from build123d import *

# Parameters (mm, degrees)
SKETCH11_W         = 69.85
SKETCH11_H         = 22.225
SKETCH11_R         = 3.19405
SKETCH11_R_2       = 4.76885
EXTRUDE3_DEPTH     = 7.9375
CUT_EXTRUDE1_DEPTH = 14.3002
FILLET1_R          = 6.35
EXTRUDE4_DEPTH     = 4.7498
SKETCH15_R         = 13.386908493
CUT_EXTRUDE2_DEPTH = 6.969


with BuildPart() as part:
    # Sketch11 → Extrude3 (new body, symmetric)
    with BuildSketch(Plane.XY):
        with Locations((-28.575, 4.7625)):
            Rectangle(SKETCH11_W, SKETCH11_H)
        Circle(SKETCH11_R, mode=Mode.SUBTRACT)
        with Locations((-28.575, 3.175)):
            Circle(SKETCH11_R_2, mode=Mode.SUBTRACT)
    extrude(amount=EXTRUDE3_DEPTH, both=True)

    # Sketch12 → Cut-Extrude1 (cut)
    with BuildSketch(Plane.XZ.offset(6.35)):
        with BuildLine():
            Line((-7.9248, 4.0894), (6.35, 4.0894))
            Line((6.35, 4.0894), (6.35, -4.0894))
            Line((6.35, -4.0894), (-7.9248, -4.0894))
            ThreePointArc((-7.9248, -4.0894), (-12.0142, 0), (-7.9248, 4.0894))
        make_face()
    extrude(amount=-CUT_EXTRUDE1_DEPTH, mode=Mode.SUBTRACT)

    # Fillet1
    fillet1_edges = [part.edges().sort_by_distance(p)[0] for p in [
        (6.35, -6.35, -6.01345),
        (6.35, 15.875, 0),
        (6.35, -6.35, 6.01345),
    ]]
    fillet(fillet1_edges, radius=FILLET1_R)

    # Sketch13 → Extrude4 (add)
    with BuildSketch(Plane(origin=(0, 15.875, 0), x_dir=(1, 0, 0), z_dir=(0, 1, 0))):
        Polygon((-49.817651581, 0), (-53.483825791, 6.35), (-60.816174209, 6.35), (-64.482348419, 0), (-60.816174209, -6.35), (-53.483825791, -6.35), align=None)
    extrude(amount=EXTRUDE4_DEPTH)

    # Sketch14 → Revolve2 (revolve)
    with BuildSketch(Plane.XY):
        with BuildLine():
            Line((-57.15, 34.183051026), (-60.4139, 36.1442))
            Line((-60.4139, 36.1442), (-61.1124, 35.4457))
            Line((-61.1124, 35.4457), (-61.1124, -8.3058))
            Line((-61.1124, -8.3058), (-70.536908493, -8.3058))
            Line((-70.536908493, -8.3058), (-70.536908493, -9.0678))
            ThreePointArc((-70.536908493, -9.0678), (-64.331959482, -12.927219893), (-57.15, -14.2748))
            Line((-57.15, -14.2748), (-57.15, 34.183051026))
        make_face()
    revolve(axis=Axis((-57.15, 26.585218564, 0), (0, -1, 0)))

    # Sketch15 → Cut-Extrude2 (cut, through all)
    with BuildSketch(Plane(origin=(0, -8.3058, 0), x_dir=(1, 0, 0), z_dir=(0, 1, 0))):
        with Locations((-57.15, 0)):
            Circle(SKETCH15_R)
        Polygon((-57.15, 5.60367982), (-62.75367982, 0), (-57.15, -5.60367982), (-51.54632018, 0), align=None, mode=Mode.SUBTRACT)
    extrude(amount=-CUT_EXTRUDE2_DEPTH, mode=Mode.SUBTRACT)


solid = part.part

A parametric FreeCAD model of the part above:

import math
import FreeCAD as App
import Part
import Sketcher
Q = App.Units.Quantity


def edges_at(feature, points):
    """Names of the edges that pass closest to the given points."""
    edges = feature.Shape.Edges
    near = lambda p: min(range(len(edges)), key=lambda i: edges[i].distToShape(Part.Vertex(*p))[0])
    return sorted({f"Edge{near(p) + 1}" for p in points})

doc = App.newDocument("Part")
body = doc.addObject("PartDesign::Body", "Body")

sketch1 = body.newObject("Sketcher::SketchObject", "Sketch")
sketch1.AttachmentSupport = (doc.getObject("XY_Plane"), [""])
sketch1.MapMode = "FlatFace"
sketch1.addGeometry([
    Part.LineSegment(App.Vector(-63.5, 15.9, 0), App.Vector(-63.5, -6.3, 0)),
    Part.LineSegment(App.Vector(-63.5, -6.3, 0), App.Vector(6.3, -6.3, 0)),
    Part.LineSegment(App.Vector(6.3, -6.3, 0), App.Vector(6.3, 15.9, 0)),
    Part.LineSegment(App.Vector(6.3, 15.9, 0), App.Vector(-63.5, 15.9, 0)),
    Part.Circle(App.Vector(0, 0, 0), App.Vector(0, 0, 1), 3.2),
    Part.Circle(App.Vector(-28.6, 3.2, 0), App.Vector(0, 0, 1), 4.8),
], False)
sketch1.addConstraint([
    Sketcher.Constraint("Coincident", 0, 2, 1, 1),
    Sketcher.Constraint("Coincident", 1, 2, 2, 1),
    Sketcher.Constraint("Coincident", 2, 2, 3, 1),
    Sketcher.Constraint("Coincident", 3, 2, 0, 1),
    Sketcher.Constraint("Vertical", 0),
    Sketcher.Constraint("Horizontal", 1),
    Sketcher.Constraint("Vertical", 2),
    Sketcher.Constraint("Horizontal", 3),
    Sketcher.Constraint("Coincident", 4, 3, -1, 1),
    Sketcher.Constraint("Diameter", 4, Q("0.2515 in")),
    Sketcher.Constraint("Diameter", 5, Q("0.3755 in")),
    Sketcher.Constraint("DistanceX", 1, 1, 1, 2, Q("2.75 in")),
    Sketcher.Constraint("DistanceX", 0, 2, -1, 1, Q("2.5 in")),
    Sketcher.Constraint("DistanceY", 5, 3, 2, 2, Q("0.5 in")),
    Sketcher.Constraint("DistanceY", 0, 2, 0, 1, Q("0.875 in")),
    Sketcher.Constraint("DistanceY", 0, 2, -1, 1, Q("0.25 in")),
    Sketcher.Constraint("DistanceX", 5, 3, -1, 1, Q("1.125 in")),
])
pad1 = body.newObject("PartDesign::Pad", "Pad")
pad1.Profile = sketch1
pad1.Length = Q("0.625 in")
pad1.Midplane = True

sketch2 = body.newObject("Sketcher::SketchObject", "Sketch001")
sketch2.AttachmentSupport = (doc.getObject("XZ_Plane"), [""])
sketch2.MapMode = "FlatFace"
sketch2.AttachmentOffset = App.Placement(App.Vector(0, 0, 0.25 * 25.4), App.Rotation())
sketch2.addGeometry([
    Part.LineSegment(App.Vector(6.3, 4.1, 0), App.Vector(-7.9, 4.1, 0)),
    Part.ArcOfCircle(Part.Circle(App.Vector(-7.9, 0, 0), App.Vector(0, 0, 1), 4.1), math.radians(90), math.radians(270)),
    Part.LineSegment(App.Vector(-7.9, -4.1, 0), App.Vector(6.3, -4.1, 0)),
    Part.LineSegment(App.Vector(6.3, -4.1, 0), App.Vector(6.3, 4.1, 0)),
], False)
sketch2.addConstraint([
    Sketcher.Constraint("Tangent", 0, 2, 1, 1),
    Sketcher.Constraint("Tangent", 1, 2, 2, 1),
    Sketcher.Constraint("Coincident", 2, 2, 3, 1),
    Sketcher.Constraint("Coincident", 3, 2, 0, 1),
    Sketcher.Constraint("Horizontal", 0),
    Sketcher.Constraint("Horizontal", 2),
    Sketcher.Constraint("Vertical", 3),
    Sketcher.Constraint("PointOnObject", 1, 3, -1),
    Sketcher.Constraint("Radius", 1, Q("0.161 in")),
    Sketcher.Constraint("DistanceX", 0, 2, 0, 1, Q("0.562 in")),
    Sketcher.Constraint("DistanceX", -1, 1, 2, 2, Q("0.25 in")),
])
pocket1 = body.newObject("PartDesign::Pocket", "Pocket")
pocket1.Profile = sketch2
pocket1.Length = Q("0.563 in")
doc.recompute()

fillet = body.newObject("PartDesign::Fillet", "Fillet")
fillet.Base = (pocket1, edges_at(pocket1, [(6.35, -6.35, -6.013), (6.35, 15.875, 0), (6.35, -6.35, 6.013)]))
fillet.Radius = Q("0.25 in")

sketch3 = body.newObject("Sketcher::SketchObject", "Sketch002")
sketch3.AttachmentSupport = (doc.getObject("XZ_Plane"), [""])
sketch3.MapMode = "FlatFace"
sketch3.AttachmentOffset = App.Placement(App.Vector(0, 0, -0.625 * 25.4), App.Rotation())
sketch3.addGeometry([
    Part.LineSegment(App.Vector(-50, 0, 0), App.Vector(-53, -6, 0)),
    Part.LineSegment(App.Vector(-53, -6, 0), App.Vector(-61, -6, 0)),
    Part.LineSegment(App.Vector(-61, -6, 0), App.Vector(-64, 0, 0)),
    Part.LineSegment(App.Vector(-64, 0, 0), App.Vector(-61, 6, 0)),
    Part.LineSegment(App.Vector(-61, 6, 0), App.Vector(-53, 6, 0)),
    Part.LineSegment(App.Vector(-53, 6, 0), App.Vector(-50, 0, 0)),
], False)
sketch3.addConstraint([
    Sketcher.Constraint("Coincident", 0, 2, 1, 1),
    Sketcher.Constraint("Coincident", 1, 2, 2, 1),
    Sketcher.Constraint("Coincident", 2, 2, 3, 1),
    Sketcher.Constraint("Coincident", 3, 2, 4, 1),
    Sketcher.Constraint("Coincident", 4, 2, 5, 1),
    Sketcher.Constraint("Coincident", 5, 2, 0, 1),
    Sketcher.Constraint("Horizontal", 1),
    Sketcher.Constraint("Horizontal", 4),
    Sketcher.Constraint("Symmetric", 1, 2, 3, 2, -1),
    Sketcher.Constraint("PointOnObject", 2, 2, -1),
    Sketcher.Constraint("PointOnObject", 5, 2, -1),
    Sketcher.Constraint("Parallel", 0, 3),
    Sketcher.Constraint("Parallel", 2, 5),
    Sketcher.Constraint("Angle", 0, Q("-120 deg")),
    Sketcher.Constraint("DistanceY", 1, 2, 3, 2, Q("0.5 in")),
    Sketcher.Constraint("DistanceX", 1, 2, 1, 1, 7.332348),
    Sketcher.Constraint("DistanceX", 2, 2, -1, 1, 64.482348),
])
pad2 = body.newObject("PartDesign::Pad", "Pad001")
pad2.Profile = sketch3
pad2.Length = Q("0.187 in")
pad2.Reversed = True

sketch4 = body.newObject("Sketcher::SketchObject", "Sketch003")
sketch4.AttachmentSupport = (doc.getObject("XY_Plane"), [""])
sketch4.MapMode = "FlatFace"
sketch4.addGeometry([
    Part.LineSegment(App.Vector(-57.1, 34.2, 0), App.Vector(-60.4, 36.1, 0)),
    Part.LineSegment(App.Vector(-60.4, 36.1, 0), App.Vector(-61.1, 35.4, 0)),
    Part.LineSegment(App.Vector(-61.1, 35.4, 0), App.Vector(-61.1, -8.3, 0)),
    Part.LineSegment(App.Vector(-61.1, -8.3, 0), App.Vector(-70.5, -8.3, 0)),
    Part.LineSegment(App.Vector(-70.5, -8.3, 0), App.Vector(-70.5, -9.1, 0)),
    Part.ArcOfCircle(Part.Circle(App.Vector(-57.1, 5.5, 0), App.Vector(0, 0, 1), 19.8), math.radians(-133), math.radians(-90)),
    Part.LineSegment(App.Vector(-57.1, -14.3, 0), App.Vector(-57.1, 34.2, 0)),
], False)
sketch4.addGeometry(Part.LineSegment(App.Vector(-57.1, 36.1, 0), App.Vector(-57.1, -14.3, 0)), True)
sketch4.addConstraint([
    Sketcher.Constraint("Coincident", 0, 2, 1, 1),
    Sketcher.Constraint("Coincident", 1, 2, 2, 1),
    Sketcher.Constraint("Coincident", 2, 2, 3, 1),
    Sketcher.Constraint("Coincident", 3, 2, 4, 1),
    Sketcher.Constraint("Coincident", 4, 2, 5, 1),
    Sketcher.Constraint("Coincident", 5, 2, 6, 1),
    Sketcher.Constraint("Coincident", 6, 2, 0, 1),
    Sketcher.Constraint("Vertical", 2),
    Sketcher.Constraint("Horizontal", 3),
    Sketcher.Constraint("Vertical", 4),
    Sketcher.Constraint("Vertical", 6),
    Sketcher.Constraint("Vertical", 7),
    Sketcher.Constraint("Coincident", 7, 2, 5, 2),
    Sketcher.Constraint("Horizontal", 0, 2, 7, 1),
    Sketcher.Constraint("Radius", 5, Q("0.78 in")),
    Sketcher.Constraint("Angle", 0, Q("149 deg")),
    Sketcher.Constraint("Angle", 1, Q("-135 deg")),
    Sketcher.Constraint("DistanceY", 4, 2, 4, 1, Q("0.03 in")),
    Sketcher.Constraint("DistanceY", 7, 2, 7, 1, Q("1.985 in")),
    Sketcher.Constraint("DistanceX", 5, 3, -1, 1, Q("2.25 in")),
    Sketcher.Constraint("DistanceX", 5, 2, -1, 1, Q("2.25 in")),
    Sketcher.Constraint("DistanceY", 2, 2, 0, 2, Q("1.75 in")),
    Sketcher.Constraint("DistanceY", 2, 2, 2, 1, Q("1.7225 in")),
    Sketcher.Constraint("DistanceY", -1, 1, 5, 3, Q("0.218 in")),
    Sketcher.Constraint("DistanceX", 1, 2, -1, 1, Q("2.406 in")),
])
revolution = body.newObject("PartDesign::Revolution", "Revolution")
revolution.Profile = sketch4
revolution.ReferenceAxis = (sketch4, ["Axis0"])
revolution.Angle = 360

sketch5 = body.newObject("Sketcher::SketchObject", "Sketch004")
sketch5.AttachmentSupport = (doc.getObject("XZ_Plane"), [""])
sketch5.MapMode = "FlatFace"
sketch5.AttachmentOffset = App.Placement(App.Vector(0, 0, 0.327 * 25.4), App.Rotation())
sketch5.addGeometry([
    Part.Circle(App.Vector(-57, 0, 0), App.Vector(0, 0, 1), 13),
    Part.LineSegment(App.Vector(-63, 0, 0), App.Vector(-57, -6, 0)),
    Part.LineSegment(App.Vector(-57, -6, 0), App.Vector(-52, 0, 0)),
    Part.LineSegment(App.Vector(-52, 0, 0), App.Vector(-57, 6, 0)),
    Part.LineSegment(App.Vector(-57, 6, 0), App.Vector(-63, 0, 0)),
], False)
sketch5.addConstraint([
    Sketcher.Constraint("Coincident", 1, 2, 2, 1),
    Sketcher.Constraint("Coincident", 2, 2, 3, 1),
    Sketcher.Constraint("Coincident", 3, 2, 4, 1),
    Sketcher.Constraint("Coincident", 4, 2, 1, 1),
    Sketcher.Constraint("Symmetric", 1, 2, 3, 2, -1),
    Sketcher.Constraint("PointOnObject", 0, 3, -1),
    Sketcher.Constraint("PointOnObject", 2, 2, -1),
    Sketcher.Constraint("PointOnObject", 4, 2, -1),
    Sketcher.Constraint("Perpendicular", 1, 2),
    Sketcher.Constraint("Perpendicular", 2, 3),
    Sketcher.Constraint("Vertical", 0, 3, 1, 2),
    Sketcher.Constraint("DistanceX", 0, 3, -1, 1, Q("2.25 in")),
    Sketcher.Constraint("Distance", 1, Q("0.312 in")),
    Sketcher.Constraint("Diameter", 0, 26.773817),
])
pocket2 = body.newObject("PartDesign::Pocket", "Pocket001")
pocket2.Profile = sketch5
pocket2.Type = "ThroughAll"
pocket2.Reversed = True

doc.recompute()
